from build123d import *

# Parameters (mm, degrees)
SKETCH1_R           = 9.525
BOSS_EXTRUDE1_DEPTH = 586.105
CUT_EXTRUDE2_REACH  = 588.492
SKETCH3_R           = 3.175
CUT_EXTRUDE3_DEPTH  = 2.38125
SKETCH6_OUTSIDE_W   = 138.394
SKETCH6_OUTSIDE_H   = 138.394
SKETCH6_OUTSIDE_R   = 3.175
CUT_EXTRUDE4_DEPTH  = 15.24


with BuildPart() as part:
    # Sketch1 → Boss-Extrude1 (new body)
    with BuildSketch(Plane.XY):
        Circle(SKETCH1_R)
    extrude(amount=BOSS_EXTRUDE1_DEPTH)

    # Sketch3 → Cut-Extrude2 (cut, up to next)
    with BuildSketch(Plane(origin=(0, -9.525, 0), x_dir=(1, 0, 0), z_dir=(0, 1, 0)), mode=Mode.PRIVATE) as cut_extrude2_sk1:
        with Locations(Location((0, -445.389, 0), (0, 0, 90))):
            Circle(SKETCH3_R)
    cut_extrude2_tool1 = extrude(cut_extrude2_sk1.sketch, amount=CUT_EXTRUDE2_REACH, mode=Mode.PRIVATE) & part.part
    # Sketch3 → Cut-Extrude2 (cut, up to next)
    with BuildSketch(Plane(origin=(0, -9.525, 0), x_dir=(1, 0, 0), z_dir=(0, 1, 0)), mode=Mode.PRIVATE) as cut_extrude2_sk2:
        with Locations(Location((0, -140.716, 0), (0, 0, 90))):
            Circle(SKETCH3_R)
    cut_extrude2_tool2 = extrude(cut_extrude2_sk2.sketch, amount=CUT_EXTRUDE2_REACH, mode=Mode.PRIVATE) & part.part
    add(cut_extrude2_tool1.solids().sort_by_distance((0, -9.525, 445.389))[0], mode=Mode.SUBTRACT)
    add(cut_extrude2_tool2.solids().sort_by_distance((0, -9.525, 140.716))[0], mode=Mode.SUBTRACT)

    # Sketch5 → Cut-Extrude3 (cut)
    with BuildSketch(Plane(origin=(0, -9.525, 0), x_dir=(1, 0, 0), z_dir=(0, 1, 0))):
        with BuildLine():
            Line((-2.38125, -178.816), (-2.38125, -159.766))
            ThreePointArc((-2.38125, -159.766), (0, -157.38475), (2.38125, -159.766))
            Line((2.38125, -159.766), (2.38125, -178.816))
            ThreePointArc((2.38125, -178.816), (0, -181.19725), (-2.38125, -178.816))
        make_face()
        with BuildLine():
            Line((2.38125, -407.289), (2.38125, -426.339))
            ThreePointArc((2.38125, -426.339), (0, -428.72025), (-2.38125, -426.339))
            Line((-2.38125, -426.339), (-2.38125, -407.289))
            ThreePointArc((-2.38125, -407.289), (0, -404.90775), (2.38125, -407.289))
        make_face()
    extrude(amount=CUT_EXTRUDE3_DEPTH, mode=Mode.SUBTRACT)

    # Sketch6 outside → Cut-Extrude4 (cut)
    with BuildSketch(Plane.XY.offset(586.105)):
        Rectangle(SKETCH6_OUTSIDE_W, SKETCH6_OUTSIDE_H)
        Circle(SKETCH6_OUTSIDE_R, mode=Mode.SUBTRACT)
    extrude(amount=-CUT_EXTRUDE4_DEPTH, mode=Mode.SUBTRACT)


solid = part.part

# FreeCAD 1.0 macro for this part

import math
import FreeCAD as App
import Part
import Sketcher

V = App.Vector
Q = App.Units.Quantity

doc = App.newDocument("Part")
params = doc.addObject("Spreadsheet::Sheet", "Params")
for row, (alias, value) in enumerate([
    ("sketch1_diameter", "0.75 in"),
    ("pad1_length", "23.075 in"),
    ("sketch2_diameter", "0.25 in"),
    ("pocket1_length", "0.75 in"),
    ("sketch3_diameter", "0.25 in"),
    ("pocket2_length", "0.75 in"),
    ("sketch4_radius", "0.09375 in"),
    ("sketch4_height", "0.75 in"),
    ("pocket3_length", "0.09375 in"),
    ("sketch5_diameter", "0.25 in"),
    ("pocket4_length", "0.6 in"),
], start=1):
    params.set(f"A{row}", alias)
    params.set(f"B{row}", "=" + value)
    params.setAlias(f"B{row}", alias)

body = doc.addObject("PartDesign::Body", "Body")

# Sketch on XY plane
sketch1 = body.newObject("Sketcher::SketchObject", "Sketch")
sketch1.AttachmentSupport = (doc.getObject("XY_Plane"), [""])
sketch1.MapMode = "FlatFace"
sketch1.addGeometry(Part.Circle(V(0, 0, 0), V(0, 0, 1), 10), False)
sketch1.addConstraint([
    Sketcher.Constraint("Coincident", 0, 3, -1, 1),
    Sketcher.Constraint("Diameter", 0, Q("0.75 in")),
])
sketch1.setExpression("Constraints[1]", "Params.sketch1_diameter")
pad1 = body.newObject("PartDesign::Pad", "Pad")
pad1.Profile = sketch1
pad1.setExpression("Length", "Params.pad1_length")

# Sketch on XZ plane
sketch2 = body.newObject("Sketcher::SketchObject", "Sketch001")
sketch2.AttachmentSupport = (doc.getObject("XZ_Plane"), [""])
sketch2.MapMode = "FlatFace"
sketch2.AttachmentOffset = App.Placement(V(0, 0, 0.375 * 25.4), App.Rotation())
sketch2.addGeometry(Part.Circle(V(0, 445.4, 0), V(0, 0, 1), 3.2), False)
sketch2.addConstraint([
    Sketcher.Constraint("PointOnObject", 0, 3, -2),
    Sketcher.Constraint("Diameter", 0, Q("0.25 in")),
    Sketcher.Constraint("DistanceY", -1, 1, 0, 3, Q("17.535 in")),
])
sketch2.setExpression("Constraints[1]", "Params.sketch2_diameter")
pocket1 = body.newObject("PartDesign::Pocket", "Pocket")
pocket1.Profile = sketch2
pocket1.setExpression("Length", "Params.pocket1_length")

# Sketch on XZ plane
sketch3 = body.newObject("Sketcher::SketchObject", "Sketch002")
sketch3.AttachmentSupport = (doc.getObject("XZ_Plane"), [""])
sketch3.MapMode = "FlatFace"
sketch3.AttachmentOffset = App.Placement(V(0, 0, 0.375 * 25.4), App.Rotation())
sketch3.addGeometry(Part.Circle(V(0, 140.7, 0), V(0, 0, 1), 3.2), False)
sketch3.addConstraint([
    Sketcher.Constraint("PointOnObject", 0, 3, -2),
    Sketcher.Constraint("Diameter", 0, Q("0.25 in")),
    Sketcher.Constraint("DistanceY", -1, 1, 0, 3, Q("5.54 in")),
])
sketch3.setExpression("Constraints[1]", "Params.sketch3_diameter")
pocket2 = body.newObject("PartDesign::Pocket", "Pocket001")
pocket2.Profile = sketch3
pocket2.setExpression("Length", "Params.pocket2_length")

# Sketch on XZ plane
sketch4 = body.newObject("Sketcher::SketchObject", "Sketch003")
sketch4.AttachmentSupport = (doc.getObject("XZ_Plane"), [""])
sketch4.MapMode = "FlatFace"
sketch4.AttachmentOffset = App.Placement(V(0, 0, 0.375 * 25.4), App.Rotation())
sketch4.addGeometry([
    Part.LineSegment(V(-2.4, 159.8, 0), V(-2.4, 178.8, 0)),  # 0
    Part.ArcOfCircle(Part.Circle(V(0, 178.8, 0), V(0, 0, 1), 2.4), math.radians(0), math.radians(180)),  # 1
    Part.LineSegment(V(2.4, 178.8, 0), V(2.4, 159.8, 0)),  # 2
    Part.ArcOfCircle(Part.Circle(V(0, 159.8, 0), V(0, 0, 1), 2.4), math.radians(180), math.radians(360)),  # 3
    Part.LineSegment(V(2.4, 426.3, 0), V(2.4, 407.3, 0)),  # 4
    Part.ArcOfCircle(Part.Circle(V(0, 407.3, 0), V(0, 0, 1), 2.4), math.radians(180), math.radians(360)),  # 5
    Part.LineSegment(V(-2.4, 407.3, 0), V(-2.4, 426.3, 0)),  # 6
    Part.ArcOfCircle(Part.Circle(V(0, 426.3, 0), V(0, 0, 1), 2.4), math.radians(0), math.radians(180)),  # 7
], False)
sketch4.addConstraint([
    Sketcher.Constraint("Tangent", 0, 2, 1, 2),
    Sketcher.Constraint("Tangent", 1, 1, 2, 1),
    Sketcher.Constraint("Tangent", 2, 2, 3, 2),
    Sketcher.Constraint("Tangent", 3, 1, 0, 1),
    Sketcher.Constraint("Tangent", 4, 2, 5, 2),
    Sketcher.Constraint("Tangent", 5, 1, 6, 1),
    Sketcher.Constraint("Tangent", 6, 2, 7, 2),
    Sketcher.Constraint("Tangent", 7, 1, 4, 1),
    Sketcher.Constraint("Vertical", 0),
    Sketcher.Constraint("Vertical", 2),
    Sketcher.Constraint("Vertical", 4),
    Sketcher.Constraint("Vertical", 6),
    Sketcher.Constraint("Equal", 3, 5),
    Sketcher.Constraint("PointOnObject", 1, 3, -2),
    Sketcher.Constraint("PointOnObject", 5, 3, -2),
    Sketcher.Constraint("Equal", 2, 4),
    Sketcher.Constraint("Radius", 1, Q("0.09375 in")),
    Sketcher.Constraint("DistanceY", 0, 1, 0, 2, Q("0.75 in")),
    Sketcher.Constraint("DistanceY", -1, 1, 1, 3, Q("7.04 in")),
    Sketcher.Constraint("DistanceY", -1, 1, 5, 3, Q("16.035 in")),
])
sketch4.setExpression("Constraints[16]", "Params.sketch4_radius")
sketch4.setExpression("Constraints[17]", "Params.sketch4_height")
pocket3 = body.newObject("PartDesign::Pocket", "Pocket002")
pocket3.Profile = sketch4
pocket3.setExpression("Length", "Params.pocket3_length")

# Sketch on XY plane
sketch5 = body.newObject("Sketcher::SketchObject", "Sketch004")
sketch5.AttachmentSupport = (doc.getObject("XY_Plane"), [""])
sketch5.MapMode = "FlatFace"
sketch5.AttachmentOffset = App.Placement(V(0, 0, 23.075 * 25.4), App.Rotation())
sketch5.addGeometry([
    Part.LineSegment(V(-69.2, 69.2, 0), V(-69.2, -69.2, 0)),  # 0
    Part.LineSegment(V(-69.2, -69.2, 0), V(69.2, -69.2, 0)),  # 1
    Part.LineSegment(V(69.2, -69.2, 0), V(69.2, 69.2, 0)),  # 2
    Part.LineSegment(V(69.2, 69.2, 0), V(-69.2, 69.2, 0)),  # 3
    Part.Circle(V(0, 0, 0), V(0, 0, 1), 3.2),  # 4
], False)
sketch5.addConstraint([
    Sketcher.Constraint("Coincident", 0, 2, 1, 1),
    Sketcher.Constraint("Coincident", 1, 2, 2, 1),
    Sketcher.Constraint("Coincident", 2, 2, 3, 1),
    Sketcher.Constraint("Coincident", 3, 2, 0, 1),
    Sketcher.Constraint("Vertical", 0),
    Sketcher.Constraint("Horizontal", 1),
    Sketcher.Constraint("Vertical", 2),
    Sketcher.Constraint("Horizontal", 3),
    Sketcher.Constraint("Coincident", 4, 3, -1, 1),
    Sketcher.Constraint("Symmetric", 0, 2, 2, 2, -1, 1),
    Sketcher.Constraint("Equal", 3, 0),
    Sketcher.Constraint("Diameter", 4, Q("0.25 in")),
    Sketcher.Constraint("DistanceX", 1, 1, 1, 2, Q("138.394 mm")),
])
sketch5.setExpression("Constraints[11]", "Params.sketch5_diameter")
pocket4 = body.newObject("PartDesign::Pocket", "Pocket003")
pocket4.Profile = sketch5
pocket4.setExpression("Length", "Params.pocket4_length")

doc.recompute()
